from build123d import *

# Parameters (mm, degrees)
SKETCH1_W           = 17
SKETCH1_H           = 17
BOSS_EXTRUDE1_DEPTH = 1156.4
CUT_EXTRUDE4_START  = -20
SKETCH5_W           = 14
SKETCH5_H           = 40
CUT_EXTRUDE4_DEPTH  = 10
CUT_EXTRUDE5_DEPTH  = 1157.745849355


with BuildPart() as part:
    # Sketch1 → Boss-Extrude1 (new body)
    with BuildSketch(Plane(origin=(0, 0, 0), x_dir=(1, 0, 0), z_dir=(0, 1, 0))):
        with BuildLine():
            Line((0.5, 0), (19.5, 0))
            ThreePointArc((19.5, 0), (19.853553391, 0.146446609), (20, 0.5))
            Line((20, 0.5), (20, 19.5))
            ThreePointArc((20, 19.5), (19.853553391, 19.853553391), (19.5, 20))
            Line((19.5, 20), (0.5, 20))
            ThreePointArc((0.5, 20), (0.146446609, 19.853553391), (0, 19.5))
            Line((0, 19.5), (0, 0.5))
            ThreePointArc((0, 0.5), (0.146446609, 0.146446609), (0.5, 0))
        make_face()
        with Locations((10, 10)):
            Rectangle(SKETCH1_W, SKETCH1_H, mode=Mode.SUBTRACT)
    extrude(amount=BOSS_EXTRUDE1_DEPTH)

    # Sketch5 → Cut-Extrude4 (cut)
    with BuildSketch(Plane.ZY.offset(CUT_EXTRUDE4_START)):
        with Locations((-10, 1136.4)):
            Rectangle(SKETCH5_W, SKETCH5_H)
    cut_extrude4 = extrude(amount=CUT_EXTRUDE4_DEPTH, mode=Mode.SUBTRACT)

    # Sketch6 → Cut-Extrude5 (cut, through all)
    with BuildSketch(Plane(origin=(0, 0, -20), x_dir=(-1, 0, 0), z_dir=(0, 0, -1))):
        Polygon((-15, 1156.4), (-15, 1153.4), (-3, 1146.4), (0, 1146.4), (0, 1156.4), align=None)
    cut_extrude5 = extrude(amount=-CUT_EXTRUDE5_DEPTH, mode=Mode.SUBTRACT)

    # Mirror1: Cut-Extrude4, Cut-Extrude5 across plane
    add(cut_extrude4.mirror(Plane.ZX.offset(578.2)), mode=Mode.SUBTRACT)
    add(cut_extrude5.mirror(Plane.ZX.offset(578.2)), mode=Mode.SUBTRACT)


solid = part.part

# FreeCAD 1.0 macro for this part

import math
import FreeCAD as App
import Part
import Sketcher
from FreeCAD import Vector

doc = App.newDocument("Part")
body = doc.addObject("PartDesign::Body", "Body")

# Sketch on XZ plane
sketch1 = doc.addObject("Sketcher::SketchObject", "Sketch")
body.addObject(sketch1)
sketch1.AttachmentSupport = (doc.XZ_Plane, [""])
sketch1.MapMode = "FlatFace"
sketch1.addGeometry(Part.LineSegment(Vector(0.5, 0, 0), Vector(19.5, 0, 0)), False)
sketch1.addGeometry(Part.ArcOfCircle(Part.Circle(Vector(19.5, -0.5, 0), Vector(0, 0, 1), 0.5), math.radians(0), math.radians(90)), False)
sketch1.addGeometry(Part.LineSegment(Vector(20, -0.5, 0), Vector(20, -19.5, 0)), False)
sketch1.addGeometry(Part.ArcOfCircle(Part.Circle(Vector(19.5, -19.5, 0), Vector(0, 0, 1), 0.5), math.radians(-90), math.radians(0)), False)
sketch1.addGeometry(Part.LineSegment(Vector(19.5, -20, 0), Vector(0.5, -20, 0)), False)
sketch1.addGeometry(Part.ArcOfCircle(Part.Circle(Vector(0.5, -19.5, 0), Vector(0, 0, 1), 0.5), math.radians(180), math.radians(270)), False)
sketch1.addGeometry(Part.LineSegment(Vector(0, -19.5, 0), Vector(0, -0.5, 0)), False)
sketch1.addGeometry(Part.ArcOfCircle(Part.Circle(Vector(0.5, -0.5, 0), Vector(0, 0, 1), 0.5), math.radians(90), math.radians(180)), False)
sketch1.addGeometry(Part.LineSegment(Vector(18.5, -1.5, 0), Vector(1.5, -1.5, 0)), False)
sketch1.addGeometry(Part.LineSegment(Vector(1.5, -1.5, 0), Vector(1.5, -18.5, 0)), False)
sketch1.addGeometry(Part.LineSegment(Vector(1.5, -18.5, 0), Vector(18.5, -18.5, 0)), False)
sketch1.addGeometry(Part.LineSegment(Vector(18.5, -18.5, 0), Vector(18.5, -1.5, 0)), False)
sketch1.addConstraint(Sketcher.Constraint("Tangent", 0, 2, 1, 2))
sketch1.addConstraint(Sketcher.Constraint("Tangent", 1, 1, 2, 1))
sketch1.addConstraint(Sketcher.Constraint("Tangent", 2, 2, 3, 2))
sketch1.addConstraint(Sketcher.Constraint("Tangent", 3, 1, 4, 1))
sketch1.addConstraint(Sketcher.Constraint("Tangent", 4, 2, 5, 2))
sketch1.addConstraint(Sketcher.Constraint("Tangent", 5, 1, 6, 1))
sketch1.addConstraint(Sketcher.Constraint("Tangent", 6, 2, 7, 2))
sketch1.addConstraint(Sketcher.Constraint("Tangent", 7, 1, 0, 1))
sketch1.addConstraint(Sketcher.Constraint("Coincident", 8, 2, 9, 1))
sketch1.addConstraint(Sketcher.Constraint("Coincident", 9, 2, 10, 1))
sketch1.addConstraint(Sketcher.Constraint("Coincident", 10, 2, 11, 1))
sketch1.addConstraint(Sketcher.Constraint("Coincident", 11, 2, 8, 1))
sketch1.addConstraint(Sketcher.Constraint("Horizontal", 0))
sketch1.addConstraint(Sketcher.Constraint("Vertical", 2))
sketch1.addConstraint(Sketcher.Constraint("Horizontal", 4))
sketch1.addConstraint(Sketcher.Constraint("Vertical", 6))
sketch1.addConstraint(Sketcher.Constraint("Horizontal", 8))
sketch1.addConstraint(Sketcher.Constraint("Vertical", 9))
sketch1.addConstraint(Sketcher.Constraint("Horizontal", 10))
sketch1.addConstraint(Sketcher.Constraint("Vertical", 11))
sketch1.addConstraint(Sketcher.Constraint("Equal", 1, 3))
sketch1.addConstraint(Sketcher.Constraint("Equal", 3, 5))
sketch1.addConstraint(Sketcher.Constraint("Equal", 5, 7))
sketch1.addConstraint(Sketcher.Constraint("PointOnObject", 0, 2, -1))
sketch1.addConstraint(Sketcher.Constraint("PointOnObject", 5, 1, -2))
sketch1.addConstraint(Sketcher.Constraint("Equal", 4, 2))
sketch1.addConstraint(Sketcher.Constraint("Equal", 10, 9))
sketch1.addConstraint(Sketcher.Constraint("Radius", 1, 0.5))
sketch1.addConstraint(Sketcher.Constraint("DistanceX", 0, 1, 0, 2, 19.0))
sketch1.addConstraint(Sketcher.Constraint("DistanceX", 8, 2, 8, 1, 17.0))
sketch1.addConstraint(Sketcher.Constraint("DistanceX", 7, 3, 8, 2, 1.0))
sketch1.addConstraint(Sketcher.Constraint("DistanceY", 8, 2, 7, 3, 1.0))
pad1 = doc.addObject("PartDesign::Pad", "Pad")
body.addObject(pad1)
pad1.Profile = sketch1
pad1.Length = 1156.4
pad1.Reversed = True

# Sketch on YZ plane
sketch2 = doc.addObject("Sketcher::SketchObject", "Sketch001")
body.addObject(sketch2)
sketch2.AttachmentSupport = (doc.YZ_Plane, [""])
sketch2.MapMode = "FlatFace"
sketch2.AttachmentOffset = App.Placement(Vector(0, 0, 20), App.Rotation())
sketch2.addGeometry(Part.LineSegment(Vector(1156, -17, 0), Vector(1116, -17, 0)), False)
sketch2.addGeometry(Part.LineSegment(Vector(1116, -17, 0), Vector(1116, -3, 0)), False)
sketch2.addGeometry(Part.LineSegment(Vector(1116, -3, 0), Vector(1156, -3, 0)), False)
sketch2.addGeometry(Part.LineSegment(Vector(1156, -3, 0), Vector(1156, -17, 0)), False)
sketch2.addConstraint(Sketcher.Constraint("Coincident", 0, 2, 1, 1))
sketch2.addConstraint(Sketcher.Constraint("Coincident", 1, 2, 2, 1))
sketch2.addConstraint(Sketcher.Constraint("Coincident", 2, 2, 3, 1))
sketch2.addConstraint(Sketcher.Constraint("Coincident", 3, 2, 0, 1))
sketch2.addConstraint(Sketcher.Constraint("Horizontal", 0))
sketch2.addConstraint(Sketcher.Constraint("Vertical", 1))
sketch2.addConstraint(Sketcher.Constraint("Horizontal", 2))
sketch2.addConstraint(Sketcher.Constraint("Vertical", 3))
sketch2.addConstraint(Sketcher.Constraint("DistanceX", 0, 2, 0, 1, 40.0))
sketch2.addConstraint(Sketcher.Constraint("DistanceY", 1, 1, 1, 2, 14.0))
sketch2.addConstraint(Sketcher.Constraint("DistanceY", 0, 2, -1, 1, 17.0))
sketch2.addConstraint(Sketcher.Constraint("DistanceX", -1, 1, 0, 2, 1116.4))
pocket1 = doc.addObject("PartDesign::Pocket", "Pocket")
body.addObject(pocket1)
pocket1.Profile = sketch2
pocket1.Length = 10

# Sketch on XY plane
sketch3 = doc.addObject("Sketcher::SketchObject", "Sketch002")
body.addObject(sketch3)
sketch3.AttachmentSupport = (doc.XY_Plane, [""])
sketch3.MapMode = "FlatFace"
sketch3.AttachmentOffset = App.Placement(Vector(0, 0, -20), App.Rotation())
sketch3.addGeometry(Part.LineSegment(Vector(15, 1156.4, 0), Vector(15, 1153.4, 0)), False)
sketch3.addGeometry(Part.LineSegment(Vector(15, 1153.4, 0), Vector(3, 1146.4, 0)), False)
sketch3.addGeometry(Part.LineSegment(Vector(3, 1146.4, 0), Vector(0, 1146.4, 0)), False)
sketch3.addGeometry(Part.LineSegment(Vector(0, 1146.4, 0), Vector(0, 1156.4, 0)), False)
sketch3.addGeometry(Part.LineSegment(Vector(0, 1156.4, 0), Vector(15, 1156.4, 0)), False)
sketch3.addConstraint(Sketcher.Constraint("Coincident", 0, 2, 1, 1))
sketch3.addConstraint(Sketcher.Constraint("Coincident", 1, 2, 2, 1))
sketch3.addConstraint(Sketcher.Constraint("Coincident", 2, 2, 3, 1))
sketch3.addConstraint(Sketcher.Constraint("Coincident", 3, 2, 4, 1))
sketch3.addConstraint(Sketcher.Constraint("Coincident", 4, 2, 0, 1))
sketch3.addConstraint(Sketcher.Constraint("Vertical", 0))
sketch3.addConstraint(Sketcher.Constraint("Horizontal", 2))
sketch3.addConstraint(Sketcher.Constraint("Vertical", 3))
sketch3.addConstraint(Sketcher.Constraint("Horizontal", 4))
sketch3.addConstraint(Sketcher.Constraint("PointOnObject", 2, 2, -2))
sketch3.addConstraint(Sketcher.Constraint("Equal", 2, 0))
sketch3.addConstraint(Sketcher.Constraint("DistanceX", 2, 2, 2, 1, 3.0))
sketch3.addConstraint(Sketcher.Constraint("DistanceX", 4, 1, 4, 2, 15.0))
sketch3.addConstraint(Sketcher.Constraint("DistanceY", 3, 1, 3, 2, 10.0))
sketch3.addConstraint(Sketcher.Constraint("DistanceY", -1, 1, 0, 2, 1153.4))
pocket2 = doc.addObject("PartDesign::Pocket", "Pocket001")
body.addObject(pocket2)
pocket2.Profile = sketch3
pocket2.Type = "ThroughAll"
pocket2.Reversed = True
doc.recompute()

datumplane = doc.addObject("PartDesign::Plane", "DatumPlane")
body.addObject(datumplane)
datumplane.AttachmentSupport = (doc.XZ_Plane, [""])
datumplane.MapMode = "FlatFace"
datumplane.AttachmentOffset = App.Placement(Vector(0, 0, -578.2), App.Rotation())
mirrored = doc.addObject("PartDesign::Mirrored", "Mirrored")
body.addObject(mirrored)
mirrored.Originals = [pocket1, pocket2]
mirrored.MirrorPlane = (datumplane, [""])
body.Tip = mirrored

doc.recompute()
